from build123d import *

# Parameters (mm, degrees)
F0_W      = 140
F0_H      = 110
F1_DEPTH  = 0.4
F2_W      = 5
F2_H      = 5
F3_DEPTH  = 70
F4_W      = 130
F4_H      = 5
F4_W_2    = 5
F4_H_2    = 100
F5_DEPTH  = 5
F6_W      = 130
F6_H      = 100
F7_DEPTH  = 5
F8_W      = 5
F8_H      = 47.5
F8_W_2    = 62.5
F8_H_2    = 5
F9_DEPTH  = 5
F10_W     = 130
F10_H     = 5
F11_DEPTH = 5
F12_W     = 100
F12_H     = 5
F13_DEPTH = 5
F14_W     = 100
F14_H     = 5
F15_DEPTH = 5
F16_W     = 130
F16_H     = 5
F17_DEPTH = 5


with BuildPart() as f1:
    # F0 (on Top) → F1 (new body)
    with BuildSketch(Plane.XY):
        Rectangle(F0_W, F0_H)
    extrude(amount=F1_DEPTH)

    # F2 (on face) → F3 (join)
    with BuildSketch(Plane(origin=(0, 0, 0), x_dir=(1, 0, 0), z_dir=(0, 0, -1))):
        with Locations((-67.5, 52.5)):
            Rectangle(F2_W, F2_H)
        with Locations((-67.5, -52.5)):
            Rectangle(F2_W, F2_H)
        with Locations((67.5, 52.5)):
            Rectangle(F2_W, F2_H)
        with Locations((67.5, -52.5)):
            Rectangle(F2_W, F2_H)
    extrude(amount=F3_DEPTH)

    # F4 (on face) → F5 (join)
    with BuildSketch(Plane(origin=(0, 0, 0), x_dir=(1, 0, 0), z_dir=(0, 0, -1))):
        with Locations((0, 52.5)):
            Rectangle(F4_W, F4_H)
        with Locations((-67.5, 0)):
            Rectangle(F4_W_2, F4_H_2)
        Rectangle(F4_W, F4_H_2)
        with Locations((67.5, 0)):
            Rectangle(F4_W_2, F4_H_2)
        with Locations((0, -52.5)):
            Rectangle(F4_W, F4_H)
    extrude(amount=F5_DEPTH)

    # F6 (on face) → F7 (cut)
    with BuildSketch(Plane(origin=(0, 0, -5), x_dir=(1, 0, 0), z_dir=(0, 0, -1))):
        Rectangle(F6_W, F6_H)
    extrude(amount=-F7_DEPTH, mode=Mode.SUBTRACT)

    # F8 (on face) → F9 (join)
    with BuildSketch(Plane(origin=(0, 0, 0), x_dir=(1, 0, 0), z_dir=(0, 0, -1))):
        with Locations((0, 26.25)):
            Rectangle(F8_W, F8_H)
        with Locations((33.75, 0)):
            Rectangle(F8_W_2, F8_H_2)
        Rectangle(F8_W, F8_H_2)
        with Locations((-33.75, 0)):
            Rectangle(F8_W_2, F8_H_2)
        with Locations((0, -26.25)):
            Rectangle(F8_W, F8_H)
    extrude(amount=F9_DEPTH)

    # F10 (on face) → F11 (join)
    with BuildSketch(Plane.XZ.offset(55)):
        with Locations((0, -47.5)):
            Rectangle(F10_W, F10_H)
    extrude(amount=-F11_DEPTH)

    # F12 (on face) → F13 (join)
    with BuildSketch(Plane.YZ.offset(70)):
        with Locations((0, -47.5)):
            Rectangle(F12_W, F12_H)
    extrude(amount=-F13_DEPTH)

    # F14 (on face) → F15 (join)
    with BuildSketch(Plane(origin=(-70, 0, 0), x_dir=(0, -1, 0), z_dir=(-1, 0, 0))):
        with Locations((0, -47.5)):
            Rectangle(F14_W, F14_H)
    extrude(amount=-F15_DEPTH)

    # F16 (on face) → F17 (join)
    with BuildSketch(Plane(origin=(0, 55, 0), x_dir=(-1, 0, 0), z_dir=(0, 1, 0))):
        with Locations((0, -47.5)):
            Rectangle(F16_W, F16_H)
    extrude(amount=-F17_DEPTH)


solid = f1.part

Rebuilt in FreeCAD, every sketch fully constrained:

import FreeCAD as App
import Part
import Sketcher

V = App.Vector
Q = App.Units.Quantity

doc = App.newDocument("Part")
body = doc.addObject("PartDesign::Body", "Body")

# Sketch on XY plane
sketch1 = body.newObject("Sketcher::SketchObject", "Sketch")
sketch1.AttachmentSupport = (doc.getObject("XY_Plane"), [""])
sketch1.MapMode = "FlatFace"
sketch1.addGeometry([
    Part.LineSegment(V(-70, 55, 0), V(-70, -55, 0)),
    Part.LineSegment(V(-70, -55, 0), V(70, -55, 0)),
    Part.LineSegment(V(70, -55, 0), V(70, 55, 0)),
    Part.LineSegment(V(70, 55, 0), V(-70, 55, 0)),
], False)
sketch1.addConstraint([
    Sketcher.Constraint("Coincident", 0, 2, 1, 1),
    Sketcher.Constraint("Coincident", 1, 2, 2, 1),
    Sketcher.Constraint("Coincident", 2, 2, 3, 1),
    Sketcher.Constraint("Coincident", 3, 2, 0, 1),
    Sketcher.Constraint("Vertical", 0),
    Sketcher.Constraint("Horizontal", 1),
    Sketcher.Constraint("Vertical", 2),
    Sketcher.Constraint("Horizontal", 3),
    Sketcher.Constraint("Symmetric", 0, 2, 2, 2, -1, 1),
    Sketcher.Constraint("DistanceX", 1, 1, 1, 2, Q("140 mm")),
    Sketcher.Constraint("DistanceY", 0, 2, 0, 1, Q("110 mm")),
])
pad1 = body.newObject("PartDesign::Pad", "Pad")
pad1.Profile = sketch1
pad1.Length = 0.4

# Sketch on XY plane
sketch2 = body.newObject("Sketcher::SketchObject", "Sketch001")
sketch2.AttachmentSupport = (doc.getObject("XY_Plane"), [""])
sketch2.MapMode = "FlatFace"
sketch2.addGeometry([
    Part.LineSegment(V(-70, -55, 0), V(-70, -50, 0)),  # 0
    Part.LineSegment(V(-70, -50, 0), V(-65, -50, 0)),  # 1
    Part.LineSegment(V(-65, -50, 0), V(-65, -55, 0)),  # 2
    Part.LineSegment(V(-65, -55, 0), V(-70, -55, 0)),  # 3
    Part.LineSegment(V(-70, 50, 0), V(-70, 55, 0)),  # 4
    Part.LineSegment(V(-70, 55, 0), V(-65, 55, 0)),  # 5
    Part.LineSegment(V(-65, 55, 0), V(-65, 50, 0)),  # 6
    Part.LineSegment(V(-65, 50, 0), V(-70, 50, 0)),  # 7
    Part.LineSegment(V(65, -55, 0), V(65, -50, 0)),  # 8
    Part.LineSegment(V(65, -50, 0), V(70, -50, 0)),  # 9
    Part.LineSegment(V(70, -50, 0), V(70, -55, 0)),  # 10
    Part.LineSegment(V(70, -55, 0), V(65, -55, 0)),  # 11
    Part.LineSegment(V(65, 50, 0), V(65, 55, 0)),  # 12
    Part.LineSegment(V(65, 55, 0), V(70, 55, 0)),  # 13
    Part.LineSegment(V(70, 55, 0), V(70, 50, 0)),  # 14
    Part.LineSegment(V(70, 50, 0), V(65, 50, 0)),  # 15
], False)
sketch2.addConstraint([
    Sketcher.Constraint("Coincident", 0, 2, 1, 1),
    Sketcher.Constraint("Coincident", 1, 2, 2, 1),
    Sketcher.Constraint("Coincident", 2, 2, 3, 1),
    Sketcher.Constraint("Coincident", 3, 2, 0, 1),
    Sketcher.Constraint("Coincident", 4, 2, 5, 1),
    Sketcher.Constraint("Coincident", 5, 2, 6, 1),
    Sketcher.Constraint("Coincident", 6, 2, 7, 1),
    Sketcher.Constraint("Coincident", 7, 2, 4, 1),
    Sketcher.Constraint("Coincident", 8, 2, 9, 1),
    Sketcher.Constraint("Coincident", 9, 2, 10, 1),
    Sketcher.Constraint("Coincident", 10, 2, 11, 1),
    Sketcher.Constraint("Coincident", 11, 2, 8, 1),
    Sketcher.Constraint("Coincident", 12, 2, 13, 1),
    Sketcher.Constraint("Coincident", 13, 2, 14, 1),
    Sketcher.Constraint("Coincident", 14, 2, 15, 1),
    Sketcher.Constraint("Coincident", 15, 2, 12, 1),
    Sketcher.Constraint("Vertical", 0),
    Sketcher.Constraint("Horizontal", 1),
    Sketcher.Constraint("Vertical", 2),
    Sketcher.Constraint("Horizontal", 3),
    Sketcher.Constraint("Vertical", 4),
    Sketcher.Constraint("Horizontal", 5),
    Sketcher.Constraint("Vertical", 6),
    Sketcher.Constraint("Horizontal", 7),
    Sketcher.Constraint("Vertical", 8),
    Sketcher.Constraint("Horizontal", 9),
    Sketcher.Constraint("Vertical", 10),
    Sketcher.Constraint("Horizontal", 11),
    Sketcher.Constraint("Vertical", 12),
    Sketcher.Constraint("Horizontal", 13),
    Sketcher.Constraint("Vertical", 14),
    Sketcher.Constraint("Horizontal", 15),
    Sketcher.Constraint("Symmetric", 6, 2, 8, 2, -1, 1),
    Sketcher.Constraint("Symmetric", 4, 2, 10, 2, -1, 1),
    Sketcher.Constraint("Symmetric", 2, 2, 12, 2, -1, 1),
    Sketcher.Constraint("Symmetric", 0, 2, 14, 2, -1, 1),
    Sketcher.Constraint("Symmetric", 1, 2, 8, 2, -2),
    Sketcher.Constraint("Symmetric", 3, 2, 10, 2, -2),
    Sketcher.Constraint("Equal", 15, 0),
    Sketcher.Constraint("DistanceX", 1, 1, 1, 2, Q("5 mm")),
    Sketcher.Constraint("DistanceX", 0, 2, -1, 1, Q("70 mm")),
    Sketcher.Constraint("DistanceY", 0, 2, -1, 1, Q("50 mm")),
])
pad2 = body.newObject("PartDesign::Pad", "Pad001")
pad2.Profile = sketch2
pad2.Length = 70
pad2.Reversed = True

# Sketch on XY plane
sketch3 = body.newObject("Sketcher::SketchObject", "Sketch002")
sketch3.AttachmentSupport = (doc.getObject("XY_Plane"), [""])
sketch3.MapMode = "FlatFace"
sketch3.addGeometry([
    Part.LineSegment(V(-65, -55, 0), V(-65, -50, 0)),  # 0
    Part.LineSegment(V(-65, -50, 0), V(-70, -50, 0)),  # 1
    Part.LineSegment(V(-70, -50, 0), V(-70, 50, 0)),  # 2
    Part.LineSegment(V(-70, 50, 0), V(-65, 50, 0)),  # 3
    Part.LineSegment(V(-65, 50, 0), V(-65, 55, 0)),  # 4
    Part.LineSegment(V(-65, 55, 0), V(65, 55, 0)),  # 5
    Part.LineSegment(V(65, 55, 0), V(65, 50, 0)),  # 6
    Part.LineSegment(V(65, 50, 0), V(70, 50, 0)),  # 7
    Part.LineSegment(V(70, 50, 0), V(70, -50, 0)),  # 8
    Part.LineSegment(V(70, -50, 0), V(65, -50, 0)),  # 9
    Part.LineSegment(V(65, -50, 0), V(65, -55, 0)),  # 10
    Part.LineSegment(V(65, -55, 0), V(-65, -55, 0)),  # 11
], False)
sketch3.addConstraint([
    Sketcher.Constraint("Coincident", 0, 2, 1, 1),
    Sketcher.Constraint("Coincident", 1, 2, 2, 1),
    Sketcher.Constraint("Coincident", 2, 2, 3, 1),
    Sketcher.Constraint("Coincident", 3, 2, 4, 1),
    Sketcher.Constraint("Coincident", 4, 2, 5, 1),
    Sketcher.Constraint("Coincident", 5, 2, 6, 1),
    Sketcher.Constraint("Coincident", 6, 2, 7, 1),
    Sketcher.Constraint("Coincident", 7, 2, 8, 1),
    Sketcher.Constraint("Coincident", 8, 2, 9, 1),
    Sketcher.Constraint("Coincident", 9, 2, 10, 1),
    Sketcher.Constraint("Coincident", 10, 2, 11, 1),
    Sketcher.Constraint("Coincident", 11, 2, 0, 1),
    Sketcher.Constraint("Vertical", 0),
    Sketcher.Constraint("Horizontal", 1),
    Sketcher.Constraint("Vertical", 2),
    Sketcher.Constraint("Horizontal", 3),
    Sketcher.Constraint("Vertical", 4),
    Sketcher.Constraint("Horizontal", 5),
    Sketcher.Constraint("Vertical", 6),
    Sketcher.Constraint("Horizontal", 7),
    Sketcher.Constraint("Vertical", 8),
    Sketcher.Constraint("Horizontal", 9),
    Sketcher.Constraint("Vertical", 10),
    Sketcher.Constraint("Horizontal", 11),
    Sketcher.Constraint("Symmetric", 0, 2, 6, 2, -1, 1),
    Sketcher.Constraint("Symmetric", 2, 2, 8, 2, -1, 1),
    Sketcher.Constraint("Symmetric", 4, 2, 10, 2, -1, 1),
    Sketcher.Constraint("Symmetric", 3, 2, 6, 2, -2),
    Sketcher.Constraint("Equal", 9, 0),
    Sketcher.Constraint("DistanceX", 1, 2, 1, 1, Q("5 mm")),
    Sketcher.Constraint("DistanceX", 5, 1, 5, 2, Q("130 mm")),
    Sketcher.Constraint("DistanceY", 2, 1, 2, 2, Q("100 mm")),
])
pad3 = body.newObject("PartDesign::Pad", "Pad002")
pad3.Profile = sketch3
pad3.Length = 5
pad3.Reversed = True

# Sketch on XY plane
sketch4 = body.newObject("Sketcher::SketchObject", "Sketch003")
sketch4.AttachmentSupport = (doc.getObject("XY_Plane"), [""])
sketch4.MapMode = "FlatFace"
sketch4.AttachmentOffset = App.Placement(V(0, 0, -5), App.Rotation())
sketch4.addGeometry([
    Part.LineSegment(V(-65, -50, 0), V(-65, 50, 0)),
    Part.LineSegment(V(-65, 50, 0), V(65, 50, 0)),
    Part.LineSegment(V(65, 50, 0), V(65, -50, 0)),
    Part.LineSegment(V(65, -50, 0), V(-65, -50, 0)),
], False)
sketch4.addConstraint([
    Sketcher.Constraint("Coincident", 0, 2, 1, 1),
    Sketcher.Constraint("Coincident", 1, 2, 2, 1),
    Sketcher.Constraint("Coincident", 2, 2, 3, 1),
    Sketcher.Constraint("Coincident", 3, 2, 0, 1),
    Sketcher.Constraint("Vertical", 0),
    Sketcher.Constraint("Horizontal", 1),
    Sketcher.Constraint("Vertical", 2),
    Sketcher.Constraint("Horizontal", 3),
    Sketcher.Constraint("Symmetric", 0, 2, 2, 2, -1, 1),
    Sketcher.Constraint("DistanceX", 1, 1, 1, 2, Q("130 mm")),
    Sketcher.Constraint("DistanceY", 0, 1, 0, 2, Q("100 mm")),
])
pocket1 = body.newObject("PartDesign::Pocket", "Pocket")
pocket1.Profile = sketch4
pocket1.Length = 5
pocket1.Reversed = True

# Sketch on XY plane
sketch5 = body.newObject("Sketcher::SketchObject", "Sketch004")
sketch5.AttachmentSupport = (doc.getObject("XY_Plane"), [""])
sketch5.MapMode = "FlatFace"
sketch5.addGeometry([
    Part.LineSegment(V(-2, -50, 0), V(-2, -2, 0)),  # 0
    Part.LineSegment(V(-2, -2, 0), V(-65, -2, 0)),  # 1
    Part.LineSegment(V(-65, -2, 0), V(-65, 2, 0)),  # 2
    Part.LineSegment(V(-65, 2, 0), V(-2, 2, 0)),  # 3
    Part.LineSegment(V(-2, 2, 0), V(-2, 50, 0)),  # 4
    Part.LineSegment(V(-2, 50, 0), V(2, 50, 0)),  # 5
    Part.LineSegment(V(2, 50, 0), V(2, 2, 0)),  # 6
    Part.LineSegment(V(2, 2, 0), V(65, 2, 0)),  # 7
    Part.LineSegment(V(65, 2, 0), V(65, -2, 0)),  # 8
    Part.LineSegment(V(65, -2, 0), V(2, -2, 0)),  # 9
    Part.LineSegment(V(2, -2, 0), V(2, -50, 0)),  # 10
    Part.LineSegment(V(2, -50, 0), V(-2, -50, 0)),  # 11
], False)
sketch5.addConstraint([
    Sketcher.Constraint("Coincident", 0, 2, 1, 1),
    Sketcher.Constraint("Coincident", 1, 2, 2, 1),
    Sketcher.Constraint("Coincident", 2, 2, 3, 1),
    Sketcher.Constraint("Coincident", 3, 2, 4, 1),
    Sketcher.Constraint("Coincident", 4, 2, 5, 1),
    Sketcher.Constraint("Coincident", 5, 2, 6, 1),
    Sketcher.Constraint("Coincident", 6, 2, 7, 1),
    Sketcher.Constraint("Coincident", 7, 2, 8, 1),
    Sketcher.Constraint("Coincident", 8, 2, 9, 1),
    Sketcher.Constraint("Coincident", 9, 2, 10, 1),
    Sketcher.Constraint("Coincident", 10, 2, 11, 1),
    Sketcher.Constraint("Coincident", 11, 2, 0, 1),
    Sketcher.Constraint("Vertical", 0),
    Sketcher.Constraint("Horizontal", 1),
    Sketcher.Constraint("Vertical", 2),
    Sketcher.Constraint("Horizontal", 3),
    Sketcher.Constraint("Vertical", 4),
    Sketcher.Constraint("Horizontal", 5),
    Sketcher.Constraint("Vertical", 6),
    Sketcher.Constraint("Horizontal", 7),
    Sketcher.Constraint("Vertical", 8),
    Sketcher.Constraint("Horizontal", 9),
    Sketcher.Constraint("Vertical", 10),
    Sketcher.Constraint("Horizontal", 11),
    Sketcher.Constraint("Symmetric", 0, 2, 6, 2, -1, 1),
    Sketcher.Constraint("Symmetric", 2, 2, 8, 2, -1, 1),
    Sketcher.Constraint("Symmetric", 4, 2, 10, 2, -1, 1),
    Sketcher.Constraint("Symmetric", 3, 2, 6, 2, -2),
    Sketcher.Constraint("Equal", 11, 2),
    Sketcher.Constraint("DistanceX", 5, 1, 5, 2, Q("5 mm")),
    Sketcher.Constraint("DistanceX", 1, 2, 1, 1, Q("62.5 mm")),
    Sketcher.Constraint("DistanceY", 0, 1, 0, 2, Q("47.5 mm")),
])
pad4 = body.newObject("PartDesign::Pad", "Pad003")
pad4.Profile = sketch5
pad4.Length = 5
pad4.Reversed = True

# Sketch on XZ plane
sketch6 = body.newObject("Sketcher::SketchObject", "Sketch005")
sketch6.AttachmentSupport = (doc.getObject("XZ_Plane"), [""])
sketch6.MapMode = "FlatFace"
sketch6.AttachmentOffset = App.Placement(V(0, 0, 55), App.Rotation())
sketch6.addGeometry([
    Part.LineSegment(V(-65, -45, 0), V(-65, -50, 0)),
    Part.LineSegment(V(-65, -50, 0), V(65, -50, 0)),
    Part.LineSegment(V(65, -50, 0), V(65, -45, 0)),
    Part.LineSegment(V(65, -45, 0), V(-65, -45, 0)),
], False)
sketch6.addConstraint([
    Sketcher.Constraint("Coincident", 0, 2, 1, 1),
    Sketcher.Constraint("Coincident", 1, 2, 2, 1),
    Sketcher.Constraint("Coincident", 2, 2, 3, 1),
    Sketcher.Constraint("Coincident", 3, 2, 0, 1),
    Sketcher.Constraint("Vertical", 0),
    Sketcher.Constraint("Horizontal", 1),
    Sketcher.Constraint("Vertical", 2),
    Sketcher.Constraint("Horizontal", 3),
    Sketcher.Constraint("DistanceX", 1, 1, 1, 2, Q("130 mm")),
    Sketcher.Constraint("DistanceY", 0, 2, 0, 1, Q("5 mm")),
    Sketcher.Constraint("DistanceX", 0, 2, -1, 1, Q("65 mm")),
    Sketcher.Constraint("DistanceY", 0, 2, -1, 1, Q("50 mm")),
])
pad5 = body.newObject("PartDesign::Pad", "Pad004")
pad5.Profile = sketch6
pad5.Length = 5
pad5.Reversed = True

# Sketch on YZ plane
sketch7 = body.newObject("Sketcher::SketchObject", "Sketch006")
sketch7.AttachmentSupport = (doc.getObject("YZ_Plane"), [""])
sketch7.MapMode = "FlatFace"
sketch7.AttachmentOffset = App.Placement(V(0, 0, 70), App.Rotation())
sketch7.addGeometry([
    Part.LineSegment(V(-50, -45, 0), V(-50, -50, 0)),
    Part.LineSegment(V(-50, -50, 0), V(50, -50, 0)),
    Part.LineSegment(V(50, -50, 0), V(50, -45, 0)),
    Part.LineSegment(V(50, -45, 0), V(-50, -45, 0)),
], False)
sketch7.addConstraint([
    Sketcher.Constraint("Coincident", 0, 2, 1, 1),
    Sketcher.Constraint("Coincident", 1, 2, 2, 1),
    Sketcher.Constraint("Coincident", 2, 2, 3, 1),
    Sketcher.Constraint("Coincident", 3, 2, 0, 1),
    Sketcher.Constraint("Vertical", 0),
    Sketcher.Constraint("Horizontal", 1),
    Sketcher.Constraint("Vertical", 2),
    Sketcher.Constraint("Horizontal", 3),
    Sketcher.Constraint("DistanceX", 1, 1, 1, 2, Q("100 mm")),
    Sketcher.Constraint("DistanceY", 0, 2, 0, 1, Q("5 mm")),
    Sketcher.Constraint("DistanceX", 0, 2, -1, 1, Q("50 mm")),
    Sketcher.Constraint("DistanceY", 0, 2, -1, 1, Q("50 mm")),
])
pad6 = body.newObject("PartDesign::Pad", "Pad005")
pad6.Profile = sketch7
pad6.Length = 5
pad6.Reversed = True

# Sketch on YZ plane
sketch8 = body.newObject("Sketcher::SketchObject", "Sketch007")
sketch8.AttachmentSupport = (doc.getObject("YZ_Plane"), [""])
sketch8.MapMode = "FlatFace"
sketch8.AttachmentOffset = App.Placement(V(0, 0, -70), App.Rotation())
sketch8.addGeometry([
    Part.LineSegment(V(50, -45, 0), V(50, -50, 0)),
    Part.LineSegment(V(50, -50, 0), V(-50, -50, 0)),
    Part.LineSegment(V(-50, -50, 0), V(-50, -45, 0)),
    Part.LineSegment(V(-50, -45, 0), V(50, -45, 0)),
], False)
sketch8.addConstraint([
    Sketcher.Constraint("Coincident", 0, 2, 1, 1),
    Sketcher.Constraint("Coincident", 1, 2, 2, 1),
    Sketcher.Constraint("Coincident", 2, 2, 3, 1),
    Sketcher.Constraint("Coincident", 3, 2, 0, 1),
    Sketcher.Constraint("Vertical", 0),
    Sketcher.Constraint("Horizontal", 1),
    Sketcher.Constraint("Vertical", 2),
    Sketcher.Constraint("Horizontal", 3),
    Sketcher.Constraint("DistanceX", 1, 2, 1, 1, Q("100 mm")),
    Sketcher.Constraint("DistanceY", 0, 2, 0, 1, Q("5 mm")),
    Sketcher.Constraint("DistanceX", -1, 1, 0, 2, Q("50 mm")),
    Sketcher.Constraint("DistanceY", 0, 2, -1, 1, Q("50 mm")),
])
pad7 = body.newObject("PartDesign::Pad", "Pad006")
pad7.Profile = sketch8
pad7.Length = 5

# Sketch on XZ plane
sketch9 = body.newObject("Sketcher::SketchObject", "Sketch008")
sketch9.AttachmentSupport = (doc.getObject("XZ_Plane"), [""])
sketch9.MapMode = "FlatFace"
sketch9.AttachmentOffset = App.Placement(V(0, 0, -55), App.Rotation())
sketch9.addGeometry([
    Part.LineSegment(V(65, -45, 0), V(65, -50, 0)),
    Part.LineSegment(V(65, -50, 0), V(-65, -50, 0)),
    Part.LineSegment(V(-65, -50, 0), V(-65, -45, 0)),
    Part.LineSegment(V(-65, -45, 0), V(65, -45, 0)),
], False)
sketch9.addConstraint([
    Sketcher.Constraint("Coincident", 0, 2, 1, 1),
    Sketcher.Constraint("Coincident", 1, 2, 2, 1),
    Sketcher.Constraint("Coincident", 2, 2, 3, 1),
    Sketcher.Constraint("Coincident", 3, 2, 0, 1),
    Sketcher.Constraint("Vertical", 0),
    Sketcher.Constraint("Horizontal", 1),
    Sketcher.Constraint("Vertical", 2),
    Sketcher.Constraint("Horizontal", 3),
    Sketcher.Constraint("DistanceX", 1, 2, 1, 1, Q("130 mm")),
    Sketcher.Constraint("DistanceY", 0, 2, 0, 1, Q("5 mm")),
    Sketcher.Constraint("DistanceX", -1, 1, 0, 2, Q("65 mm")),
    Sketcher.Constraint("DistanceY", 0, 2, -1, 1, Q("50 mm")),
])
pad8 = body.newObject("PartDesign::Pad", "Pad007")
pad8.Profile = sketch9
pad8.Length = 5

doc.recompute()
